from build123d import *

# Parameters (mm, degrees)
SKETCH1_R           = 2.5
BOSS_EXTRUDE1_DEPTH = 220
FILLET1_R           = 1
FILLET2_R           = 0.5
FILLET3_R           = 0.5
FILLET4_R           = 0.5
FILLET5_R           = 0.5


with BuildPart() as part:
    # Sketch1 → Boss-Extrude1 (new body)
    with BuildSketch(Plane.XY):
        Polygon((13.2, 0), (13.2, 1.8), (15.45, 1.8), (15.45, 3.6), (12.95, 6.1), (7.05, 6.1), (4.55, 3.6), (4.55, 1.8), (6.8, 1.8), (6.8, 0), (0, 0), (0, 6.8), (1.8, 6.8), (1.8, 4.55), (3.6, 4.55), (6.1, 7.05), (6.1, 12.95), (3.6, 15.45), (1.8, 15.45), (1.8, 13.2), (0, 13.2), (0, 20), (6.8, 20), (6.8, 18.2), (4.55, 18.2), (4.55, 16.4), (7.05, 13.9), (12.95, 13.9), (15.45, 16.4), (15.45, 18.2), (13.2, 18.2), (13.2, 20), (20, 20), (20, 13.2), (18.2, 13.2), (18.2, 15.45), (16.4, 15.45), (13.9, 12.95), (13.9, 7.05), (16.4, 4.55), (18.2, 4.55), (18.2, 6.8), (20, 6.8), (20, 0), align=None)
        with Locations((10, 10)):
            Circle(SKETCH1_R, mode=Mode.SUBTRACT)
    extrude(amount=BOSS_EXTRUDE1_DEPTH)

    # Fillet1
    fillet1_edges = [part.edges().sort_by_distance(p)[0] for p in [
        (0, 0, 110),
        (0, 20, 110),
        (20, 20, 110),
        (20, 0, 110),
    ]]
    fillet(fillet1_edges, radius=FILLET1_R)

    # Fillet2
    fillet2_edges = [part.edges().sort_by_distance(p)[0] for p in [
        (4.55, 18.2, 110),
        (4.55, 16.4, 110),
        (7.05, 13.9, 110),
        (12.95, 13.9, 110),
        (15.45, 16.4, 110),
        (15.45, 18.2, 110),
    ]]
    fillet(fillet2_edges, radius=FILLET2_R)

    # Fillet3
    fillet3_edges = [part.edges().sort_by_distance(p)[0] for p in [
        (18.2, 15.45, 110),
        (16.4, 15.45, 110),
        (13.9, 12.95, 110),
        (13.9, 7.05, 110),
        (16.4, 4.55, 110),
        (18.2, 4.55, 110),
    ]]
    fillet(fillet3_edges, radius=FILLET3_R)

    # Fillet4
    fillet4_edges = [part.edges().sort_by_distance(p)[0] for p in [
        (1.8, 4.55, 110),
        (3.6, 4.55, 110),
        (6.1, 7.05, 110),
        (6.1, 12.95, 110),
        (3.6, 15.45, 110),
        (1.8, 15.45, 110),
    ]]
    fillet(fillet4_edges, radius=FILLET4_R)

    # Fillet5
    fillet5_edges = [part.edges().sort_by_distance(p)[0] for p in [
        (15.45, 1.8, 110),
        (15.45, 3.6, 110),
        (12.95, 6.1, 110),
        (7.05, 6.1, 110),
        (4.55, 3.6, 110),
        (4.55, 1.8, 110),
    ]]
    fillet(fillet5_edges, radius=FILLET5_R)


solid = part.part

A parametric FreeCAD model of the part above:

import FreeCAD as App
import Part
import Sketcher

V = App.Vector
Q = App.Units.Quantity


def edges_at(feature, points):
    """Names of the edges that pass closest to the given points."""
    edges = feature.Shape.Edges
    near = lambda p: min(range(len(edges)), key=lambda i: edges[i].distToShape(Part.Vertex(*p))[0])
    return sorted({f"Edge{near(p) + 1}" for p in points})

doc = App.newDocument("Part")
body = doc.addObject("PartDesign::Body", "Body")

# Sketch on XY plane
sketch1 = body.newObject("Sketcher::SketchObject", "Sketch")
sketch1.AttachmentSupport = (doc.getObject("XY_Plane"), [""])
sketch1.MapMode = "FlatFace"
sketch1.addGeometry([
    Part.LineSegment(V(13.2, 1.8, 0), V(13.2, 0, 0)),  # 0
    Part.LineSegment(V(13.2, 0, 0), V(20, 0, 0)),  # 1
    Part.LineSegment(V(20, 0, 0), V(20, 6.8, 0)),  # 2
    Part.LineSegment(V(20, 6.8, 0), V(18.2, 6.8, 0)),  # 3
    Part.LineSegment(V(18.2, 6.8, 0), V(18.2, 4.5, 0)),  # 4
    Part.LineSegment(V(18.2, 4.5, 0), V(16.4, 4.5, 0)),  # 5
    Part.LineSegment(V(16.4, 4.5, 0), V(13.9, 7, 0)),  # 6
    Part.LineSegment(V(13.9, 7, 0), V(13.9, 12.9, 0)),  # 7
    Part.LineSegment(V(13.9, 12.9, 0), V(16.4, 15.4, 0)),  # 8
    Part.LineSegment(V(16.4, 15.4, 0), V(18.2, 15.4, 0)),  # 9
    Part.LineSegment(V(18.2, 15.4, 0), V(18.2, 13.2, 0)),  # 10
    Part.LineSegment(V(18.2, 13.2, 0), V(20, 13.2, 0)),  # 11
    Part.LineSegment(V(20, 13.2, 0), V(20, 20, 0)),  # 12
    Part.LineSegment(V(20, 20, 0), V(13.2, 20, 0)),  # 13
    Part.LineSegment(V(13.2, 20, 0), V(13.2, 18.2, 0)),  # 14
    Part.LineSegment(V(13.2, 18.2, 0), V(15.4, 18.2, 0)),  # 15
    Part.LineSegment(V(15.4, 18.2, 0), V(15.4, 16.4, 0)),  # 16
    Part.LineSegment(V(15.4, 16.4, 0), V(12.9, 13.9, 0)),  # 17
    Part.LineSegment(V(12.9, 13.9, 0), V(7, 13.9, 0)),  # 18
    Part.LineSegment(V(7, 13.9, 0), V(4.5, 16.4, 0)),  # 19
    Part.LineSegment(V(4.5, 16.4, 0), V(4.5, 18.2, 0)),  # 20
    Part.LineSegment(V(4.5, 18.2, 0), V(6.8, 18.2, 0)),  # 21
    Part.LineSegment(V(6.8, 18.2, 0), V(6.8, 20, 0)),  # 22
    Part.LineSegment(V(6.8, 20, 0), V(0, 20, 0)),  # 23
    Part.LineSegment(V(0, 20, 0), V(0, 13.2, 0)),  # 24
    Part.LineSegment(V(0, 13.2, 0), V(1.8, 13.2, 0)),  # 25
    Part.LineSegment(V(1.8, 13.2, 0), V(1.8, 15.4, 0)),  # 26
    Part.LineSegment(V(1.8, 15.4, 0), V(3.6, 15.4, 0)),  # 27
    Part.LineSegment(V(3.6, 15.4, 0), V(6.1, 12.9, 0)),  # 28
    Part.LineSegment(V(6.1, 12.9, 0), V(6.1, 7, 0)),  # 29
    Part.LineSegment(V(6.1, 7, 0), V(3.6, 4.5, 0)),  # 30
    Part.LineSegment(V(3.6, 4.5, 0), V(1.8, 4.5, 0)),  # 31
    Part.LineSegment(V(1.8, 4.5, 0), V(1.8, 6.8, 0)),  # 32
    Part.LineSegment(V(1.8, 6.8, 0), V(0, 6.8, 0)),  # 33
    Part.LineSegment(V(0, 6.8, 0), V(0, 0, 0)),  # 34
    Part.LineSegment(V(0, 0, 0), V(6.8, 0, 0)),  # 35
    Part.LineSegment(V(6.8, 0, 0), V(6.8, 1.8, 0)),  # 36
    Part.LineSegment(V(6.8, 1.8, 0), V(4.5, 1.8, 0)),  # 37
    Part.LineSegment(V(4.5, 1.8, 0), V(4.5, 3.6, 0)),  # 38
    Part.LineSegment(V(4.5, 3.6, 0), V(7, 6.1, 0)),  # 39
    Part.LineSegment(V(7, 6.1, 0), V(12.9, 6.1, 0)),  # 40
    Part.LineSegment(V(12.9, 6.1, 0), V(15.4, 3.6, 0)),  # 41
    Part.LineSegment(V(15.4, 3.6, 0), V(15.4, 1.8, 0)),  # 42
    Part.LineSegment(V(15.4, 1.8, 0), V(13.2, 1.8, 0)),  # 43
    Part.Circle(V(10, 10, 0), V(0, 0, 1), 2.5),  # 44
], False)
sketch1.addConstraint([
    Sketcher.Constraint("Coincident", 0, 2, 1, 1),
    Sketcher.Constraint("Coincident", 1, 2, 2, 1),
    Sketcher.Constraint("Coincident", 2, 2, 3, 1),
    Sketcher.Constraint("Coincident", 3, 2, 4, 1),
    Sketcher.Constraint("Coincident", 4, 2, 5, 1),
    Sketcher.Constraint("Coincident", 5, 2, 6, 1),
    Sketcher.Constraint("Coincident", 6, 2, 7, 1),
    Sketcher.Constraint("Coincident", 7, 2, 8, 1),
    Sketcher.Constraint("Coincident", 8, 2, 9, 1),
    Sketcher.Constraint("Coincident", 9, 2, 10, 1),
    Sketcher.Constraint("Coincident", 10, 2, 11, 1),
    Sketcher.Constraint("Coincident", 11, 2, 12, 1),
    Sketcher.Constraint("Coincident", 12, 2, 13, 1),
    Sketcher.Constraint("Coincident", 13, 2, 14, 1),
    Sketcher.Constraint("Coincident", 14, 2, 15, 1),
    Sketcher.Constraint("Coincident", 15, 2, 16, 1),
    Sketcher.Constraint("Coincident", 16, 2, 17, 1),
    Sketcher.Constraint("Coincident", 17, 2, 18, 1),
    Sketcher.Constraint("Coincident", 18, 2, 19, 1),
    Sketcher.Constraint("Coincident", 19, 2, 20, 1),
    Sketcher.Constraint("Coincident", 20, 2, 21, 1),
    Sketcher.Constraint("Coincident", 21, 2, 22, 1),
    Sketcher.Constraint("Coincident", 22, 2, 23, 1),
    Sketcher.Constraint("Coincident", 23, 2, 24, 1),
    Sketcher.Constraint("Coincident", 24, 2, 25, 1),
    Sketcher.Constraint("Coincident", 25, 2, 26, 1),
    Sketcher.Constraint("Coincident", 26, 2, 27, 1),
    Sketcher.Constraint("Coincident", 27, 2, 28, 1),
    Sketcher.Constraint("Coincident", 28, 2, 29, 1),
    Sketcher.Constraint("Coincident", 29, 2, 30, 1),
    Sketcher.Constraint("Coincident", 30, 2, 31, 1),
    Sketcher.Constraint("Coincident", 31, 2, 32, 1),
    Sketcher.Constraint("Coincident", 32, 2, 33, 1),
    Sketcher.Constraint("Coincident", 33, 2, 34, 1),
    Sketcher.Constraint("Coincident", 34, 2, 35, 1),
    Sketcher.Constraint("Coincident", 35, 2, 36, 1),
    Sketcher.Constraint("Coincident", 36, 2, 37, 1),
    Sketcher.Constraint("Coincident", 37, 2, 38, 1),
    Sketcher.Constraint("Coincident", 38, 2, 39, 1),
    Sketcher.Constraint("Coincident", 39, 2, 40, 1),
    Sketcher.Constraint("Coincident", 40, 2, 41, 1),
    Sketcher.Constraint("Coincident", 41, 2, 42, 1),
    Sketcher.Constraint("Coincident", 42, 2, 43, 1),
    Sketcher.Constraint("Coincident", 43, 2, 0, 1),
    Sketcher.Constraint("Vertical", 0),
    Sketcher.Constraint("Horizontal", 1),
    Sketcher.Constraint("Vertical", 2),
    Sketcher.Constraint("Horizontal", 3),
    Sketcher.Constraint("Vertical", 4),
    Sketcher.Constraint("Horizontal", 5),
    Sketcher.Constraint("Vertical", 7),
    Sketcher.Constraint("Horizontal", 9),
    Sketcher.Constraint("Vertical", 10),
    Sketcher.Constraint("Horizontal", 11),
    Sketcher.Constraint("Vertical", 12),
    Sketcher.Constraint("Horizontal", 13),
    Sketcher.Constraint("Vertical", 14),
    Sketcher.Constraint("Horizontal", 15),
    Sketcher.Constraint("Vertical", 16),
    Sketcher.Constraint("Horizontal", 18),
    Sketcher.Constraint("Vertical", 20),
    Sketcher.Constraint("Horizontal", 21),
    Sketcher.Constraint("Vertical", 22),
    Sketcher.Constraint("Horizontal", 23),
    Sketcher.Constraint("Vertical", 24),
    Sketcher.Constraint("Horizontal", 25),
    Sketcher.Constraint("Vertical", 26),
    Sketcher.Constraint("Horizontal", 27),
    Sketcher.Constraint("Vertical", 29),
    Sketcher.Constraint("Horizontal", 31),
    Sketcher.Constraint("Vertical", 32),
    Sketcher.Constraint("Horizontal", 33),
    Sketcher.Constraint("Vertical", 34),
    Sketcher.Constraint("Horizontal", 35),
    Sketcher.Constraint("Vertical", 36),
    Sketcher.Constraint("Horizontal", 37),
    Sketcher.Constraint("Vertical", 38),
    Sketcher.Constraint("Horizontal", 40),
    Sketcher.Constraint("Vertical", 42),
    Sketcher.Constraint("Horizontal", 43),
    Sketcher.Constraint("Coincident", 34, 2, -1, 1),
    Sketcher.Constraint("PointOnObject", 0, 2, -1),
    Sketcher.Constraint("PointOnObject", 23, 2, -2),
    Sketcher.Constraint("Perpendicular", 6, 8),
    Sketcher.Constraint("Parallel", 8, 17),
    Sketcher.Constraint("Perpendicular", 17, 19),
    Sketcher.Constraint("Parallel", 19, 28),
    Sketcher.Constraint("Perpendicular", 28, 30),
    Sketcher.Constraint("Parallel", 30, 39),
    Sketcher.Constraint("Perpendicular", 39, 41),
    Sketcher.Constraint("Horizontal", 16, 2, 19, 2),
    Sketcher.Constraint("Horizontal", 15, 2, 20, 2),
    Sketcher.Constraint("Horizontal", 13, 2, 22, 2),
    Sketcher.Constraint("Horizontal", 11, 2, 24, 2),
    Sketcher.Constraint("Horizontal", 9, 2, 26, 2),
    Sketcher.Constraint("Horizontal", 7, 2, 28, 2),
    Sketcher.Constraint("Horizontal", 6, 2, 29, 2),
    Sketcher.Constraint("Horizontal", 5, 2, 30, 2),
    Sketcher.Constraint("Horizontal", 3, 2, 32, 2),
    Sketcher.Constraint("Horizontal", 38, 2, 41, 2),
    Sketcher.Constraint("Horizontal", 37, 2, 42, 2),
    Sketcher.Constraint("Vertical", 5, 2, 8, 2),
    Sketcher.Constraint("Vertical", 4, 2, 9, 2),
    Sketcher.Constraint("Vertical", 2, 2, 11, 2),
    Sketcher.Constraint("Vertical", 0, 2, 13, 2),
    Sketcher.Constraint("Vertical", 27, 2, 30, 2),
    Sketcher.Constraint("Vertical", 26, 2, 31, 2),
    Sketcher.Constraint("Vertical", 22, 2, 35, 2),
    Sketcher.Constraint("Vertical", 20, 2, 37, 2),
    Sketcher.Constraint("Vertical", 18, 2, 39, 2),
    Sketcher.Constraint("Vertical", 17, 2, 40, 2),
    Sketcher.Constraint("Equal", 3, 5),
    Sketcher.Constraint("Equal", 15, 21),
    Sketcher.Constraint("Equal", 13, 23),
    Sketcher.Constraint("Equal", 11, 25),
    Sketcher.Constraint("Equal", 25, 27),
    Sketcher.Constraint("Equal", 33, 0),
    Sketcher.Constraint("Equal", 35, 2),
    Sketcher.Constraint("Equal", 43, 4),
    Sketcher.Constraint("Equal", 40, 7),
    Sketcher.Constraint("Equal", 4, 10),
    Sketcher.Constraint("Equal", 2, 12),
    Sketcher.Constraint("Equal", 0, 14),
    Sketcher.Constraint("Equal", 14, 16),
    Sketcher.Constraint("Equal", 36, 38),
    Sketcher.Constraint("Equal", 8, 17),
    Sketcher.Constraint("Diameter", 44, Q("5 mm")),
    Sketcher.Constraint("DistanceX", 1, 1, 1, 2, Q("6.8 mm")),
    Sketcher.Constraint("DistanceX", 3, 2, 3, 1, Q("1.8 mm")),
    Sketcher.Constraint("DistanceX", 18, 2, 18, 1, Q("5.9 mm")),
    Sketcher.Constraint("DistanceX", -1, 1, 44, 3, Q("10 mm")),
    Sketcher.Constraint("DistanceY", -1, 1, 44, 3, Q("10 mm")),
    Sketcher.Constraint("DistanceX", -1, 1, 1, 2, Q("20 mm")),
    Sketcher.Constraint("DistanceX", 15, 1, 15, 2, Q("2.25 mm")),
])
pad1 = body.newObject("PartDesign::Pad", "Pad")
pad1.Profile = sketch1
pad1.Length = 220
doc.recompute()

fillet = body.newObject("PartDesign::Fillet", "Fillet")
fillet.Base = (pad1, edges_at(pad1, [
    (0, 0, 110),
    (0, 20, 110),
    (20, 20, 110),
    (20, 0, 110),
]))
fillet.Radius = 1
doc.recompute()

fillet2 = body.newObject("PartDesign::Fillet", "Fillet001")
fillet2.Base = (fillet, edges_at(fillet, [
    (4.55, 18.2, 110),
    (4.55, 16.4, 110),
    (7.05, 13.9, 110),
    (12.95, 13.9, 110),
    (15.45, 16.4, 110),
    (15.45, 18.2, 110),
]))
fillet2.Radius = 0.5
doc.recompute()

fillet3 = body.newObject("PartDesign::Fillet", "Fillet002")
fillet3.Base = (fillet2, edges_at(fillet2, [
    (18.2, 15.45, 110),
    (16.4, 15.45, 110),
    (13.9, 12.95, 110),
    (13.9, 7.05, 110),
    (16.4, 4.55, 110),
    (18.2, 4.55, 110),
]))
fillet3.Radius = 0.5
doc.recompute()

fillet4 = body.newObject("PartDesign::Fillet", "Fillet003")
fillet4.Base = (fillet3, edges_at(fillet3, [
    (1.8, 4.55, 110),
    (3.6, 4.55, 110),
    (6.1, 7.05, 110),
    (6.1, 12.95, 110),
    (3.6, 15.45, 110),
    (1.8, 15.45, 110),
]))
fillet4.Radius = 0.5
doc.recompute()

fillet5 = body.newObject("PartDesign::Fillet", "Fillet004")
fillet5.Base = (fillet4, edges_at(fillet4, [
    (15.45, 1.8, 110),
    (15.45, 3.6, 110),
    (12.95, 6.1, 110),
    (7.05, 6.1, 110),
    (4.55, 3.6, 110),
    (4.55, 1.8, 110),
]))
fillet5.Radius = 0.5

doc.recompute()
